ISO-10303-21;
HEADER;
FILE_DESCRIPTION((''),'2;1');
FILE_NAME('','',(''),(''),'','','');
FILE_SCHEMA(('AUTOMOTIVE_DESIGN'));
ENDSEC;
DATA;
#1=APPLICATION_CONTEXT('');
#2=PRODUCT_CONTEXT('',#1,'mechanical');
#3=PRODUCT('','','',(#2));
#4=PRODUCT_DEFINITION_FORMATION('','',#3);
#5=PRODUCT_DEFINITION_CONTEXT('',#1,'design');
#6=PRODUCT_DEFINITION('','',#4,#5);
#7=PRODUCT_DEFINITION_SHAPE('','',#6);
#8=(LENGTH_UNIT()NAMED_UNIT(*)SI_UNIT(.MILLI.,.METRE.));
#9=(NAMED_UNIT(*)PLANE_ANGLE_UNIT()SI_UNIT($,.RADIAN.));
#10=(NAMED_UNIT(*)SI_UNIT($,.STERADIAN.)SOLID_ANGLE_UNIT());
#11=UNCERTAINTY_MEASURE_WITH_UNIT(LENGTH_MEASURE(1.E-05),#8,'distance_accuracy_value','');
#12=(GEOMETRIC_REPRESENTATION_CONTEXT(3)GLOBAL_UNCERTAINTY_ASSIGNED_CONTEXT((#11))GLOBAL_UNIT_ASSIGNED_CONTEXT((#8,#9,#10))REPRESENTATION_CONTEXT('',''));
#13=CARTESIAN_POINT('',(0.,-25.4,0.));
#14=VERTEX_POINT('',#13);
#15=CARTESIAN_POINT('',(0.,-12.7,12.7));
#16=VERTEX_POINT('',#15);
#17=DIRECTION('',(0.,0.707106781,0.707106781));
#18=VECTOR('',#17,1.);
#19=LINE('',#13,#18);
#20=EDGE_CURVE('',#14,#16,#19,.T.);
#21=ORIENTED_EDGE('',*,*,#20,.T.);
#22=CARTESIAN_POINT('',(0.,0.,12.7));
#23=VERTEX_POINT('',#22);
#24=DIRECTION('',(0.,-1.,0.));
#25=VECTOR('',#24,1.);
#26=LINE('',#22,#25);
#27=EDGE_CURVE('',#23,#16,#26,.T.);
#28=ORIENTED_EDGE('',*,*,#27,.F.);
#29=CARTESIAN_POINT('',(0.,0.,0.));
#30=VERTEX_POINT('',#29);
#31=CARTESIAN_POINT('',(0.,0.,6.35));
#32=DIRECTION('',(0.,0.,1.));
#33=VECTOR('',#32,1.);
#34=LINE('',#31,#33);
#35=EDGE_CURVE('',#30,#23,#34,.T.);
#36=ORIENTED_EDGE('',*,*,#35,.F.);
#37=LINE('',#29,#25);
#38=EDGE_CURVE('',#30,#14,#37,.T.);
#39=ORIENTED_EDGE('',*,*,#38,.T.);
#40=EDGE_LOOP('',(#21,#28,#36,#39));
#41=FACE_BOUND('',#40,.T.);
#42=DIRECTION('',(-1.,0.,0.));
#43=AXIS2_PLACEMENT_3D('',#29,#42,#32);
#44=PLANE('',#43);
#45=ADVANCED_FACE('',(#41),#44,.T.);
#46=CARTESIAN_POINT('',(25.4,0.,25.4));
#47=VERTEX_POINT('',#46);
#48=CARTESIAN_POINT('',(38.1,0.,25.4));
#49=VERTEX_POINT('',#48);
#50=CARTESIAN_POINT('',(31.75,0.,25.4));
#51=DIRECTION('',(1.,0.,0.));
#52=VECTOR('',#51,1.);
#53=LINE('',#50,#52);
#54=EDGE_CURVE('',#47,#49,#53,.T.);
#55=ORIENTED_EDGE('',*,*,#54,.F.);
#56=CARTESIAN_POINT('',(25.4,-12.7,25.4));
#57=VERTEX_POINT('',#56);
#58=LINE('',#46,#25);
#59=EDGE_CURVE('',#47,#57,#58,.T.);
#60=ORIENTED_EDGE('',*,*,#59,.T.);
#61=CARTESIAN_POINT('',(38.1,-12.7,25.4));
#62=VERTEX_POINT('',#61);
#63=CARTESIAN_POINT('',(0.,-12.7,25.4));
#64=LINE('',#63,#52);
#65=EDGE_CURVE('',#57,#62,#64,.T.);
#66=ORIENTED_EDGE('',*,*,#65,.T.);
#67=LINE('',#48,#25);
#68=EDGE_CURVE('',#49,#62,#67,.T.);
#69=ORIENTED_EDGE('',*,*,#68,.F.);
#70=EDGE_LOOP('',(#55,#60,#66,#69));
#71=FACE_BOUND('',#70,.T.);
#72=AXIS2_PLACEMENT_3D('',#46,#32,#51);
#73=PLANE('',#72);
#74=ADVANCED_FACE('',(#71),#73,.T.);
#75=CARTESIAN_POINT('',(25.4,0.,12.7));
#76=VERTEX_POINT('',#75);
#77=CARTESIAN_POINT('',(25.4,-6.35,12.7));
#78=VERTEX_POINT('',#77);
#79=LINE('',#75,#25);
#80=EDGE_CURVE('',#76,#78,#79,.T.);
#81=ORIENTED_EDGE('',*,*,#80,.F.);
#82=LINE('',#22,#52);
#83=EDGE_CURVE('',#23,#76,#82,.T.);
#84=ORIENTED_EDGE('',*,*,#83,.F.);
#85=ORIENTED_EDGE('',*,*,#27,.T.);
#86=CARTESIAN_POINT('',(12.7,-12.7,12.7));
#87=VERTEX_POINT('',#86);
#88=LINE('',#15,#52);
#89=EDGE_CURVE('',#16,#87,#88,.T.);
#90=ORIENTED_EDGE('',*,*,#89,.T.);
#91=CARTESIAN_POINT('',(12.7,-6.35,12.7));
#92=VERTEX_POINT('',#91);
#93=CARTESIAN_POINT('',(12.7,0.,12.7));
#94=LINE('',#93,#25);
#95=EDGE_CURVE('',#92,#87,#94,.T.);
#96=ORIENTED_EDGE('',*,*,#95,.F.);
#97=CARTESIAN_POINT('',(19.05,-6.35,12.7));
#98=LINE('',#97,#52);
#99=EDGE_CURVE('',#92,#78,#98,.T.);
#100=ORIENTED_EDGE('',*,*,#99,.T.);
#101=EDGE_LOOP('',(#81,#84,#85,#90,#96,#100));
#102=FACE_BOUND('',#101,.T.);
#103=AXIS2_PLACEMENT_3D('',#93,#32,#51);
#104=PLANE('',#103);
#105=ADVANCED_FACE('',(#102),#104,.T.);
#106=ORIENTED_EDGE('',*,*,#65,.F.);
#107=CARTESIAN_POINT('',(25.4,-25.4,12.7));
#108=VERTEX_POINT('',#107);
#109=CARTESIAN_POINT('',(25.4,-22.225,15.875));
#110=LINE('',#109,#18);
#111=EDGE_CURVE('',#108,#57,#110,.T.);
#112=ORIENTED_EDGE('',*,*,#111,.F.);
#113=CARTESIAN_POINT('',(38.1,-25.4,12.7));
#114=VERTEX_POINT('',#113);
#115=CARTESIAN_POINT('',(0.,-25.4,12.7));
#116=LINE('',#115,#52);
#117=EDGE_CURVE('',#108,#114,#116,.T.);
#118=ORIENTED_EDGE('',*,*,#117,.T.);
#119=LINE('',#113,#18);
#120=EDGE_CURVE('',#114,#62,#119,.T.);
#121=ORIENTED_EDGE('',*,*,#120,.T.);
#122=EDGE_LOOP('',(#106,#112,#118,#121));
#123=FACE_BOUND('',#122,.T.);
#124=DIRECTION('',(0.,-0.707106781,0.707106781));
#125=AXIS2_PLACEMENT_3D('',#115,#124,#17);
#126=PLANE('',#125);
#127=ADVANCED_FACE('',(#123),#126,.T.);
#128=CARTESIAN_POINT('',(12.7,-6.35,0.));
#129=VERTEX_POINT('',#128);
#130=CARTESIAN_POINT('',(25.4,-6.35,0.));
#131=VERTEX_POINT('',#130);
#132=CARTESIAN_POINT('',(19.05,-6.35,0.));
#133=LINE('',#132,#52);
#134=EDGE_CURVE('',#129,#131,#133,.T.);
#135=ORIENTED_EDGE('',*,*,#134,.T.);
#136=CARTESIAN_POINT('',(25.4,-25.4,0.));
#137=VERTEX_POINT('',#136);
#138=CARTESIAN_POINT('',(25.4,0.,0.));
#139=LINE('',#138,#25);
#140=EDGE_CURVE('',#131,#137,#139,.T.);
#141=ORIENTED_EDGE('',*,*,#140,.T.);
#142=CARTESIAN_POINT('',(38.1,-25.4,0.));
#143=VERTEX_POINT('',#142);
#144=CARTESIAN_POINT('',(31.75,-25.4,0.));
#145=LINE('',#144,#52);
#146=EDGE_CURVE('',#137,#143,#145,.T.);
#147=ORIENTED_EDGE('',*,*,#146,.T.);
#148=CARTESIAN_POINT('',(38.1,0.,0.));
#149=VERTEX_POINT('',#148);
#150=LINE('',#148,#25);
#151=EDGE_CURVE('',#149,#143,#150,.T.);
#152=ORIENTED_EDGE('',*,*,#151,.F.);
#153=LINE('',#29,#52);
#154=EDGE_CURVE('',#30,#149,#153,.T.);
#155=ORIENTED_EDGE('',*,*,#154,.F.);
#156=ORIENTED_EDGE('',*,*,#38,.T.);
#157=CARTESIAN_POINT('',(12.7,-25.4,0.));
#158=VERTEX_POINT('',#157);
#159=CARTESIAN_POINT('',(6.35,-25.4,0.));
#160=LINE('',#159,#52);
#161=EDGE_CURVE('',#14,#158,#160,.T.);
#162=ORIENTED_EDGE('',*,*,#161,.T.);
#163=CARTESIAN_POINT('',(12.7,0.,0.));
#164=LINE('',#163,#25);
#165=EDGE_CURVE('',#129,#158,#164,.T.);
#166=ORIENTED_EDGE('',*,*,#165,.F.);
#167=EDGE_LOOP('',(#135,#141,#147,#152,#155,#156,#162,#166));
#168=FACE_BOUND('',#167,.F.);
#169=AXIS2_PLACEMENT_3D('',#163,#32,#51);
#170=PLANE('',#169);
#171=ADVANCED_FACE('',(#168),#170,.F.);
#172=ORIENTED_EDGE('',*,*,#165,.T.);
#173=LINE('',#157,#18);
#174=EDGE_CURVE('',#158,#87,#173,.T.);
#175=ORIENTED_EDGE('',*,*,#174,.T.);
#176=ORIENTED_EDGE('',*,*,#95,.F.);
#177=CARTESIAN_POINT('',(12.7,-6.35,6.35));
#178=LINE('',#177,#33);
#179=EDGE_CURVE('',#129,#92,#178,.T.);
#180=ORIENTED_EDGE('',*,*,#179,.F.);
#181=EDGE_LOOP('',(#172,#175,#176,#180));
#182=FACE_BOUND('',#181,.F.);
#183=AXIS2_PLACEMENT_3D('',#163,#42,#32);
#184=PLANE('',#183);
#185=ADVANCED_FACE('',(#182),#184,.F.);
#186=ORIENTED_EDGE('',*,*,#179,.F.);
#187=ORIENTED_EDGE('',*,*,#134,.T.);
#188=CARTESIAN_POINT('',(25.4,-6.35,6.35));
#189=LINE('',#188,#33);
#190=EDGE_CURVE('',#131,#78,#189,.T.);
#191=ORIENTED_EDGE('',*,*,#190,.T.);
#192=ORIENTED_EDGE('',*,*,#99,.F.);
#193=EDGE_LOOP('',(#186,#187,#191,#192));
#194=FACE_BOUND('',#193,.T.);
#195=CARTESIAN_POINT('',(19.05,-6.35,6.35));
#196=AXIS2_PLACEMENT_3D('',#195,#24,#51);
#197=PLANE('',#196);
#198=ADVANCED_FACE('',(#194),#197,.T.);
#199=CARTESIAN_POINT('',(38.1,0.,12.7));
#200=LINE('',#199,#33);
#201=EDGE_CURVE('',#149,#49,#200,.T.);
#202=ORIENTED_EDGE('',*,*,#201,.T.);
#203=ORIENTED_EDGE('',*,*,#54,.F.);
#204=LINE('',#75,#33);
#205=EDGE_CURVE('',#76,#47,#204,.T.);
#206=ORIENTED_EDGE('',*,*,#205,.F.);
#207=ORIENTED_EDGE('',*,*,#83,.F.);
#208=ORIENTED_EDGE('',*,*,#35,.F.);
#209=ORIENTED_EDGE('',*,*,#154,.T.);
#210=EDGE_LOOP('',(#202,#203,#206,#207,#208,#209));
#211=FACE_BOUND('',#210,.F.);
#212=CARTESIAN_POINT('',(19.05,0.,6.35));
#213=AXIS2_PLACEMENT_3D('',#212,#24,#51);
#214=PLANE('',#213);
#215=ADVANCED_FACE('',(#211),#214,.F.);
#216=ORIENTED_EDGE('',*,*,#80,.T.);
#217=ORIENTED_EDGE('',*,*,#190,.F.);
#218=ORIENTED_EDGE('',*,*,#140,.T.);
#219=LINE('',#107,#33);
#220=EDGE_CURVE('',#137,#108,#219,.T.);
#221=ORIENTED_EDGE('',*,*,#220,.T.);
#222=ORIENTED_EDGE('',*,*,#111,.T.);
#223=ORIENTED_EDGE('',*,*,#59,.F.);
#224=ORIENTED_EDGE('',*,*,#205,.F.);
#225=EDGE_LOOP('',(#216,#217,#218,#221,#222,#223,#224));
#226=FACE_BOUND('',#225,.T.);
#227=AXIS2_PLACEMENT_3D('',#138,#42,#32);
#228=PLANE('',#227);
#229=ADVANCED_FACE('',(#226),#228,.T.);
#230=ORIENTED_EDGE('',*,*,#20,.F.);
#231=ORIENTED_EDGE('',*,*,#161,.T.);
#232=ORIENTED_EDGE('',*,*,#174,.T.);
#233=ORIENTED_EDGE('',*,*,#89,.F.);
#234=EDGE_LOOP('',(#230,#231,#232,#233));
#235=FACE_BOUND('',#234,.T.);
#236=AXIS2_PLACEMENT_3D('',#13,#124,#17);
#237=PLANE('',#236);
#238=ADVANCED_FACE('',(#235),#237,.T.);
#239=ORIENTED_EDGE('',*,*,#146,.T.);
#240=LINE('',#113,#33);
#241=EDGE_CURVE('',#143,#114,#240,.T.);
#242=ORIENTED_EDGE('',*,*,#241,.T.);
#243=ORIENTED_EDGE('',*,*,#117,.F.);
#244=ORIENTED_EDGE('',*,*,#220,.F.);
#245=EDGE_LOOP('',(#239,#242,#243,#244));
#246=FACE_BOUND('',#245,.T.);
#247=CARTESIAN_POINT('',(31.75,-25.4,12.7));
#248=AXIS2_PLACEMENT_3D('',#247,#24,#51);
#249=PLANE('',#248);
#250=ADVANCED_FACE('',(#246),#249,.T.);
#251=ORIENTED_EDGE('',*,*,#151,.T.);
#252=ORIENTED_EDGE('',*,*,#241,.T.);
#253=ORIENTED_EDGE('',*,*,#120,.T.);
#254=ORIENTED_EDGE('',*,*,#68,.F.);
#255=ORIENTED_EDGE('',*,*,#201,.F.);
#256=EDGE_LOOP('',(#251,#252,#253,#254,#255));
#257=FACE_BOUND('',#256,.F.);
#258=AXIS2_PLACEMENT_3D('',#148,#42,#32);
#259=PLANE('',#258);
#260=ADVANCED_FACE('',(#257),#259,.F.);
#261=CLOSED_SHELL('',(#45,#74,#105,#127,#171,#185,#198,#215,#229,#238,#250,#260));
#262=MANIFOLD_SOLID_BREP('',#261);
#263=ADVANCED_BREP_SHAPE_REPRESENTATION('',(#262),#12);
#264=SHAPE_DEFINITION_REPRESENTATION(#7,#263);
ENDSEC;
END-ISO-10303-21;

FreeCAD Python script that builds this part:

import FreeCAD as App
import Part
import Sketcher

V = App.Vector
Q = App.Units.Quantity


def add_polygon(sketch, points):
    """Adds a closed chain of lines whose ends are joined by coincident constraints."""
    first, n = sketch.GeometryCount, len(points)
    for a, b in zip(points, points[1:] + points[:1]):
        sketch.addGeometry(Part.LineSegment(App.Vector(*a, 0), App.Vector(*b, 0)), False)
    for i in range(n):
        sketch.addConstraint(Sketcher.Constraint("Coincident", first + i, 2, first + (i + 1) % n, 1))

doc = App.newDocument("Part")
body = doc.addObject("PartDesign::Body", "Body")
body.AllowCompound = True

# Sketch on XZ plane
sketch1 = body.newObject("Sketcher::SketchObject", "Sketch")
sketch1.AttachmentSupport = (doc.getObject("XZ_Plane"), [""])
sketch1.MapMode = "FlatFace"
add_polygon(sketch1, [(25.4, 25.4), (25.4, 0), (38.1, 0), (38.1, 25.4)])  # lines 0-3
add_polygon(sketch1, [(0, 12.7), (0, 0), (12.7, 0), (12.7, 12.7)])  # lines 4-7
sketch1.addConstraint([
    Sketcher.Constraint("Vertical", 0),
    Sketcher.Constraint("Horizontal", 1),
    Sketcher.Constraint("Vertical", 2),
    Sketcher.Constraint("Horizontal", 3),
    Sketcher.Constraint("Vertical", 4),
    Sketcher.Constraint("Horizontal", 5),
    Sketcher.Constraint("Vertical", 6),
    Sketcher.Constraint("Horizontal", 7),
    Sketcher.Constraint("Coincident", 4, 2, -1, 1),
    Sketcher.Constraint("PointOnObject", 0, 2, -1),
    Sketcher.Constraint("Equal", 3, 5),
    Sketcher.Constraint("Equal", 7, 4),
    Sketcher.Constraint("DistanceY", 0, 2, 0, 1, Q("1 in")),
    Sketcher.Constraint("DistanceX", 1, 1, 1, 2, Q("0.5 in")),
    Sketcher.Constraint("DistanceX", -1, 1, 0, 2, Q("1 in")),
])
pad1 = body.newObject("PartDesign::Pad", "Pad")
pad1.Profile = sketch1
pad1.Length = Q("1 in")

# Sketch on XZ plane
sketch2 = body.newObject("Sketcher::SketchObject", "Sketch001")
sketch2.AttachmentSupport = (doc.getObject("XZ_Plane"), [""])
sketch2.MapMode = "FlatFace"
add_polygon(sketch2, [(12.7, 12.7), (12.7, 0), (25.4, 0), (25.4, 12.7)])  # lines 0-3
sketch2.addConstraint([
    Sketcher.Constraint("Vertical", 0),
    Sketcher.Constraint("Horizontal", 1),
    Sketcher.Constraint("Vertical", 2),
    Sketcher.Constraint("Horizontal", 3),
    Sketcher.Constraint("PointOnObject", 0, 2, -1),
    Sketcher.Constraint("Equal", 3, 0),
    Sketcher.Constraint("DistanceX", 1, 1, 1, 2, Q("0.5 in")),
    Sketcher.Constraint("DistanceX", -1, 1, 1, 2, Q("1 in")),
])
pad2 = body.newObject("PartDesign::Pad", "Pad001")
pad2.Profile = sketch2
pad2.Length = Q("0.25 in")

# Sketch on YZ plane
sketch3 = body.newObject("Sketcher::SketchObject", "Sketch002")
sketch3.AttachmentSupport = (doc.getObject("YZ_Plane"), [""])
sketch3.MapMode = "FlatFace"
add_polygon(sketch3, [(-25.4, 0), (-12.7, 12.7), (-25.4, 12.7)])  # lines 0-2
sketch3.addConstraint([
    Sketcher.Constraint("Horizontal", 1),
    Sketcher.Constraint("Vertical", 2),
    Sketcher.Constraint("PointOnObject", 2, 2, -1),
    Sketcher.Constraint("Equal", 1, 2),
    Sketcher.Constraint("DistanceX", 1, 2, 1, 1, Q("0.5 in")),
    Sketcher.Constraint("DistanceX", 1, 2, -1, 1, Q("1 in")),
])
pocket1 = body.newObject("PartDesign::Pocket", "Pocket")
pocket1.Profile = sketch3
pocket1.Length = Q("0.5 in")
pocket1.Reversed = True

# Sketch on YZ plane
sketch4 = body.newObject("Sketcher::SketchObject", "Sketch003")
sketch4.AttachmentSupport = (doc.getObject("YZ_Plane"), [""])
sketch4.MapMode = "FlatFace"
add_polygon(sketch4, [(-12.7, 25.4), (-25.4, 25.4), (-25.4, 12.7)])  # lines 0-2
sketch4.addConstraint([
    Sketcher.Constraint("Horizontal", 0),
    Sketcher.Constraint("Vertical", 1),
    Sketcher.Constraint("Equal", 0, 1),
    Sketcher.Constraint("DistanceX", 0, 2, 0, 1, Q("0.5 in")),
    Sketcher.Constraint("DistanceX", 0, 2, -1, 1, Q("1 in")),
    Sketcher.Constraint("DistanceY", -1, 1, 0, 2, Q("1 in")),
])
pocket2 = body.newObject("PartDesign::Pocket", "Pocket001")
pocket2.Profile = sketch4
pocket2.Length = Q("1.5 in")
pocket2.Reversed = True

doc.recompute()
